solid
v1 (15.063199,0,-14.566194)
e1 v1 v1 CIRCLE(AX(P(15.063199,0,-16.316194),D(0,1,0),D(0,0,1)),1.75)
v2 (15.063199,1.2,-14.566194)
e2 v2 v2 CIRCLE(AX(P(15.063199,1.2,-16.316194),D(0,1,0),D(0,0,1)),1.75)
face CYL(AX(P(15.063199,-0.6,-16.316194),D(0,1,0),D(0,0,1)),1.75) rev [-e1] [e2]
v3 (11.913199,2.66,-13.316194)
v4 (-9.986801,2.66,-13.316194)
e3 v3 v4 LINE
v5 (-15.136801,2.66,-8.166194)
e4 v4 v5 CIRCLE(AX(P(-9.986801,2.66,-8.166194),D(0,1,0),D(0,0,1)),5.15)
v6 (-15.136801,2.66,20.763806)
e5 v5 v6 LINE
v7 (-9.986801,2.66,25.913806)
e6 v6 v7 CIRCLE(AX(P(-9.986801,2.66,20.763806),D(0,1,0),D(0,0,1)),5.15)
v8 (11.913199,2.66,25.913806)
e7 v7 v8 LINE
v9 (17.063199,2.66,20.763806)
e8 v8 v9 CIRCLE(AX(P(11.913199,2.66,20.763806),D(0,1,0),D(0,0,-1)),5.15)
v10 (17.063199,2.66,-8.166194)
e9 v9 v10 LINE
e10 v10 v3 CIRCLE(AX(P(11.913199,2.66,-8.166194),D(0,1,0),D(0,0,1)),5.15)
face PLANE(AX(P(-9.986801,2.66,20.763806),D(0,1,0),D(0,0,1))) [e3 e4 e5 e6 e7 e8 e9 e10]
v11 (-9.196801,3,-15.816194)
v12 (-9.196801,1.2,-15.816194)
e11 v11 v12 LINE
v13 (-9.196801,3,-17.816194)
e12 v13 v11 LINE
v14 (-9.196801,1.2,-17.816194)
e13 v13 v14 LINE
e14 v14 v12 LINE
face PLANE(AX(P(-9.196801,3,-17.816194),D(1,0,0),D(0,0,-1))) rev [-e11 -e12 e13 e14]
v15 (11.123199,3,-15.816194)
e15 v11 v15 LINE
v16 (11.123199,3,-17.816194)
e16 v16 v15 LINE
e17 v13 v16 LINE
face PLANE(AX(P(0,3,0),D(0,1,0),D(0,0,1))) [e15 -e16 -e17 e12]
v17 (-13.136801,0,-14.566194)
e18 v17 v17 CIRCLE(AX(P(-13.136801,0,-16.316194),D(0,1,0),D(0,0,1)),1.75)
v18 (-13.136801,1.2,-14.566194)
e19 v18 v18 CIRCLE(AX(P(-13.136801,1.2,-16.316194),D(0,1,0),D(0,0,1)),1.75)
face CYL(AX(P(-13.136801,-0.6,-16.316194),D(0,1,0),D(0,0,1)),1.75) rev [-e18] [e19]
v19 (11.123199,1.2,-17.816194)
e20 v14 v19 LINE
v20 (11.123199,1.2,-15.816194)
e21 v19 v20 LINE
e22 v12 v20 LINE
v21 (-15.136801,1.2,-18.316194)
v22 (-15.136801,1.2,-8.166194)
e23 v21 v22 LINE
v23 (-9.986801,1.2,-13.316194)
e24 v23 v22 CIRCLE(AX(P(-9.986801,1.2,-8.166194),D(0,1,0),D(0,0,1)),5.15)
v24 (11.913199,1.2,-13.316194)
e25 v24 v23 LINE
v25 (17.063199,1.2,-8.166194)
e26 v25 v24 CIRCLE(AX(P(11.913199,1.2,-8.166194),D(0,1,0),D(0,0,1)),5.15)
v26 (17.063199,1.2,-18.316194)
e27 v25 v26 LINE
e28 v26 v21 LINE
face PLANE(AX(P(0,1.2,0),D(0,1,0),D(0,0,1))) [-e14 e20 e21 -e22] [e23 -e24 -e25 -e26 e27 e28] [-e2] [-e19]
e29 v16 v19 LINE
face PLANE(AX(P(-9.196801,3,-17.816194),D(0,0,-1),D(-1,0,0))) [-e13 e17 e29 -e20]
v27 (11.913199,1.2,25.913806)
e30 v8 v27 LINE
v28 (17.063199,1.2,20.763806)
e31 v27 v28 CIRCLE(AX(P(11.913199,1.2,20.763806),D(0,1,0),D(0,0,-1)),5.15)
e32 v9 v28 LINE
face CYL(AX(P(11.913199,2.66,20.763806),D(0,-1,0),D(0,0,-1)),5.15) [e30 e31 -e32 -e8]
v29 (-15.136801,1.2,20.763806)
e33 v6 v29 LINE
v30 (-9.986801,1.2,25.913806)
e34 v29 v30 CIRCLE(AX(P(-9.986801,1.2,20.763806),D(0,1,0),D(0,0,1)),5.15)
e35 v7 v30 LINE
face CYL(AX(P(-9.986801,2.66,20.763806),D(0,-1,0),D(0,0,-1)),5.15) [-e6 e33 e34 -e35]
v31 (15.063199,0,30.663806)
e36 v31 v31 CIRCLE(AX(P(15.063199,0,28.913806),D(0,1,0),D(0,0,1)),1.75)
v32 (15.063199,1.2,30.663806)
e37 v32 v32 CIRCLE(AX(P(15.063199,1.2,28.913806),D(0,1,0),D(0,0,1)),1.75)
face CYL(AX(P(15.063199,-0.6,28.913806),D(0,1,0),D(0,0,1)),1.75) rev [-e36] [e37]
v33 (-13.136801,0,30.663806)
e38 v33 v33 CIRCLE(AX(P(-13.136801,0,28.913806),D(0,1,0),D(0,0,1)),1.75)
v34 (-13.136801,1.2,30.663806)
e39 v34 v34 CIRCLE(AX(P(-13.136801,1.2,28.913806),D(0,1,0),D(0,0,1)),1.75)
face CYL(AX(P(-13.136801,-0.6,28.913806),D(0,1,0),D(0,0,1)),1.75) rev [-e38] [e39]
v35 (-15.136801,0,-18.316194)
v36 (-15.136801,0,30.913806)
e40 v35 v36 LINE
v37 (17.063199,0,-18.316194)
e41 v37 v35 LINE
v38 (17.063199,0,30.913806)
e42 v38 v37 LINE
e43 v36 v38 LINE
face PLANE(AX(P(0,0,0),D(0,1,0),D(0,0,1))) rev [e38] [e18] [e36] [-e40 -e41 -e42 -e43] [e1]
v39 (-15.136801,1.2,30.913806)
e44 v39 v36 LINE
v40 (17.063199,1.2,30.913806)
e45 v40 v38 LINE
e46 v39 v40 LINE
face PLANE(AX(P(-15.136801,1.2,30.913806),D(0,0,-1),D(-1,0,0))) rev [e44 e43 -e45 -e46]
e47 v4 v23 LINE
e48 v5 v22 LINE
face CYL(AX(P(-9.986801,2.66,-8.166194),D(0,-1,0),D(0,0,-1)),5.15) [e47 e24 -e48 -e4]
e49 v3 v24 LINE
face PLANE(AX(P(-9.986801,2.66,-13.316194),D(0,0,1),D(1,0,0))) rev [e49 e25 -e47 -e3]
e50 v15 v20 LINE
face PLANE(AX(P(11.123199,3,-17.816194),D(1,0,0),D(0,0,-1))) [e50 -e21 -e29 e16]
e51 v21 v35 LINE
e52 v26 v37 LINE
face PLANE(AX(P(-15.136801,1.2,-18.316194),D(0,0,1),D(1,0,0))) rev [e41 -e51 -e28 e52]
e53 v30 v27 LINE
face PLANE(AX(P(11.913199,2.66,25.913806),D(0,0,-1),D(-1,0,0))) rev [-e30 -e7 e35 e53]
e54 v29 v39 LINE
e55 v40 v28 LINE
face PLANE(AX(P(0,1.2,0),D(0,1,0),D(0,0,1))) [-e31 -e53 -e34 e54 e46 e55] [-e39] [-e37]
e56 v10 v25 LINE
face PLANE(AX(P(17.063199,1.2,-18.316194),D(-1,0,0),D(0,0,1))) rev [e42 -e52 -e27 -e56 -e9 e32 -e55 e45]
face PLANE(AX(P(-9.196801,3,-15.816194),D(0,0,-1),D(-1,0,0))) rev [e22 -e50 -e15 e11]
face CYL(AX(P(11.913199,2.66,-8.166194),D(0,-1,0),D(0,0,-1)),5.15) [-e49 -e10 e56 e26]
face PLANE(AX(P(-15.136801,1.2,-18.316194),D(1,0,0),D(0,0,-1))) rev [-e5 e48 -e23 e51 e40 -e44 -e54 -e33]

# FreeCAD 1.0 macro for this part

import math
import FreeCAD as App
import Part
import Sketcher

V = App.Vector
Q = App.Units.Quantity


def add_polygon(sketch, points):
    """Adds a closed chain of lines whose ends are joined by coincident constraints."""
    first, n = sketch.GeometryCount, len(points)
    for a, b in zip(points, points[1:] + points[:1]):
        sketch.addGeometry(Part.LineSegment(App.Vector(*a, 0), App.Vector(*b, 0)), False)
    for i in range(n):
        sketch.addConstraint(Sketcher.Constraint("Coincident", first + i, 2, first + (i + 1) % n, 1))

doc = App.newDocument("Part")
body = doc.addObject("PartDesign::Body", "Body")

sketch1 = body.newObject("Sketcher::SketchObject", "Sketch")
sketch1.AttachmentSupport = (doc.getObject("XZ_Plane"), [""])
sketch1.MapMode = "FlatFace"
add_polygon(sketch1, [(-15.136801, -18.316194), (-15.136801, 30.913806), (17.063199, 30.913806), (17.063199, -18.316194)])
sketch1.addConstraint([
    Sketcher.Constraint("Vertical", 0),
    Sketcher.Constraint("Horizontal", 1),
    Sketcher.Constraint("Vertical", 2),
    Sketcher.Constraint("Horizontal", 3),
    Sketcher.Constraint("DistanceX", 1, 1, 1, 2, Q("32.2 mm")),
    Sketcher.Constraint("DistanceY", 0, 1, 0, 2, Q("49.23 mm")),
    Sketcher.Constraint("DistanceX", 0, 2, -1, 1, Q("15.136801 mm")),
    Sketcher.Constraint("DistanceY", -1, 1, 0, 2, Q("30.913806 mm")),
])
pad1 = body.newObject("PartDesign::Pad", "Pad")
pad1.Profile = sketch1
pad1.Length = 1.2
pad1.Reversed = True

sketch2 = body.newObject("Sketcher::SketchObject", "Sketch001")
sketch2.AttachmentSupport = (doc.getObject("XZ_Plane"), [""])
sketch2.MapMode = "FlatFace"
sketch2.AttachmentOffset = App.Placement(V(0, 0, -1.2), App.Rotation())
add_polygon(sketch2, [(-9.196801, -17.816194), (-9.196801, -15.816194), (11.123199, -15.816194), (11.123199, -17.816194)])
sketch2.addConstraint([
    Sketcher.Constraint("Vertical", 0),
    Sketcher.Constraint("Horizontal", 1),
    Sketcher.Constraint("Vertical", 2),
    Sketcher.Constraint("Horizontal", 3),
    Sketcher.Constraint("DistanceY", 0, 1, 0, 2, Q("2 mm")),
    Sketcher.Constraint("DistanceX", 1, 1, 1, 2, Q("20.32 mm")),
    Sketcher.Constraint("DistanceX", 0, 2, -1, 1, Q("9.196801 mm")),
    Sketcher.Constraint("DistanceY", 0, 2, -1, 1, Q("15.816194 mm")),
])
pad2 = body.newObject("PartDesign::Pad", "Pad001")
pad2.Profile = sketch2
pad2.Length = 1.8
pad2.Reversed = True

sketch3 = body.newObject("Sketcher::SketchObject", "Sketch002")
sketch3.AttachmentSupport = (doc.getObject("XZ_Plane"), [""])
sketch3.MapMode = "FlatFace"
sketch3.AttachmentOffset = App.Placement(V(0, 0, -1.2), App.Rotation())
sketch3.addGeometry([
    Part.Circle(V(15.063199, 28.913806, 0), V(0, 0, 1), 1.75),
    Part.Circle(V(15.063199, -16.316194, 0), V(0, 0, 1), 1.75),
    Part.Circle(V(-13.136801, -16.316194, 0), V(0, 0, 1), 1.75),
    Part.Circle(V(-13.136801, 28.913806, 0), V(0, 0, 1), 1.75),
], False)
sketch3.addConstraint([
    Sketcher.Constraint("Equal", 0, 1),
    Sketcher.Constraint("Equal", 1, 2),
    Sketcher.Constraint("Equal", 2, 3),
    Sketcher.Constraint("Horizontal", 1, 3, 2, 3),
    Sketcher.Constraint("Horizontal", 0, 3, 3, 3),
    Sketcher.Constraint("Vertical", 0, 3, 1, 3),
    Sketcher.Constraint("Vertical", 2, 3, 3, 3),
    Sketcher.Constraint("Diameter", 0, Q("3.5 mm")),
    Sketcher.Constraint("DistanceX", 2, 3, 1, 3, Q("28.2 mm")),
    Sketcher.Constraint("DistanceY", 1, 3, 0, 3, Q("45.23 mm")),
    Sketcher.Constraint("DistanceX", -1, 1, 0, 3, Q("15.063199 mm")),
    Sketcher.Constraint("DistanceY", -1, 1, 0, 3, Q("28.913806 mm")),
])
pocket1 = body.newObject("PartDesign::Pocket", "Pocket")
pocket1.Profile = sketch3
pocket1.Length = 1.8
pocket1.Reversed = True

sketch4 = body.newObject("Sketcher::SketchObject", "Sketch003")
sketch4.AttachmentSupport = (doc.getObject("XZ_Plane"), [""])
sketch4.MapMode = "FlatFace"
sketch4.AttachmentOffset = App.Placement(V(0, 0, -1.2), App.Rotation())
sketch4.addGeometry([
    Part.LineSegment(V(11.913199, -13.316194, 0), V(-9.986801, -13.316194, 0)),
    Part.ArcOfCircle(Part.Circle(V(-9.986801, -8.166194, 0), V(0, 0, 1), 5.15), math.radians(180), math.radians(270)),
    Part.LineSegment(V(-15.136801, -8.166194, 0), V(-15.136801, 20.763806, 0)),
    Part.ArcOfCircle(Part.Circle(V(-9.986801, 20.763806, 0), V(0, 0, 1), 5.15), math.radians(90), math.radians(180)),
    Part.LineSegment(V(-9.986801, 25.913806, 0), V(11.913199, 25.913806, 0)),
    Part.ArcOfCircle(Part.Circle(V(11.913199, 20.763806, 0), V(0, 0, 1), 5.15), math.radians(0), math.radians(90)),
    Part.LineSegment(V(17.063199, 20.763806, 0), V(17.063199, -8.166194, 0)),
    Part.ArcOfCircle(Part.Circle(V(11.913199, -8.166194, 0), V(0, 0, 1), 5.15), math.radians(-90), math.radians(0)),
], False)
sketch4.addConstraint([
    Sketcher.Constraint("Tangent", 0, 2, 1, 2),
    Sketcher.Constraint("Tangent", 1, 1, 2, 1),
    Sketcher.Constraint("Tangent", 2, 2, 3, 2),
    Sketcher.Constraint("Tangent", 3, 1, 4, 1),
    Sketcher.Constraint("Tangent", 4, 2, 5, 2),
    Sketcher.Constraint("Tangent", 5, 1, 6, 1),
    Sketcher.Constraint("Tangent", 6, 2, 7, 2),
    Sketcher.Constraint("Tangent", 7, 1, 0, 1),
    Sketcher.Constraint("Horizontal", 0),
    Sketcher.Constraint("Vertical", 2),
    Sketcher.Constraint("Horizontal", 4),
    Sketcher.Constraint("Vertical", 6),
    Sketcher.Constraint("Equal", 1, 3),
    Sketcher.Constraint("Equal", 3, 5),
    Sketcher.Constraint("Equal", 5, 7),
    Sketcher.Constraint("Radius", 1, Q("5.15 mm")),
    Sketcher.Constraint("DistanceX", 0, 2, 0, 1, Q("21.9 mm")),
    Sketcher.Constraint("DistanceY", 2, 1, 2, 2, Q("28.93 mm")),
    Sketcher.Constraint("DistanceX", 1, 3, -1, 1, Q("9.986801 mm")),
    Sketcher.Constraint("DistanceY", 1, 3, -1, 1, Q("8.166194 mm")),
])
pad3 = body.newObject("PartDesign::Pad", "Pad002")
pad3.Profile = sketch4
pad3.Length = 1.46
pad3.Reversed = True

doc.recompute()
